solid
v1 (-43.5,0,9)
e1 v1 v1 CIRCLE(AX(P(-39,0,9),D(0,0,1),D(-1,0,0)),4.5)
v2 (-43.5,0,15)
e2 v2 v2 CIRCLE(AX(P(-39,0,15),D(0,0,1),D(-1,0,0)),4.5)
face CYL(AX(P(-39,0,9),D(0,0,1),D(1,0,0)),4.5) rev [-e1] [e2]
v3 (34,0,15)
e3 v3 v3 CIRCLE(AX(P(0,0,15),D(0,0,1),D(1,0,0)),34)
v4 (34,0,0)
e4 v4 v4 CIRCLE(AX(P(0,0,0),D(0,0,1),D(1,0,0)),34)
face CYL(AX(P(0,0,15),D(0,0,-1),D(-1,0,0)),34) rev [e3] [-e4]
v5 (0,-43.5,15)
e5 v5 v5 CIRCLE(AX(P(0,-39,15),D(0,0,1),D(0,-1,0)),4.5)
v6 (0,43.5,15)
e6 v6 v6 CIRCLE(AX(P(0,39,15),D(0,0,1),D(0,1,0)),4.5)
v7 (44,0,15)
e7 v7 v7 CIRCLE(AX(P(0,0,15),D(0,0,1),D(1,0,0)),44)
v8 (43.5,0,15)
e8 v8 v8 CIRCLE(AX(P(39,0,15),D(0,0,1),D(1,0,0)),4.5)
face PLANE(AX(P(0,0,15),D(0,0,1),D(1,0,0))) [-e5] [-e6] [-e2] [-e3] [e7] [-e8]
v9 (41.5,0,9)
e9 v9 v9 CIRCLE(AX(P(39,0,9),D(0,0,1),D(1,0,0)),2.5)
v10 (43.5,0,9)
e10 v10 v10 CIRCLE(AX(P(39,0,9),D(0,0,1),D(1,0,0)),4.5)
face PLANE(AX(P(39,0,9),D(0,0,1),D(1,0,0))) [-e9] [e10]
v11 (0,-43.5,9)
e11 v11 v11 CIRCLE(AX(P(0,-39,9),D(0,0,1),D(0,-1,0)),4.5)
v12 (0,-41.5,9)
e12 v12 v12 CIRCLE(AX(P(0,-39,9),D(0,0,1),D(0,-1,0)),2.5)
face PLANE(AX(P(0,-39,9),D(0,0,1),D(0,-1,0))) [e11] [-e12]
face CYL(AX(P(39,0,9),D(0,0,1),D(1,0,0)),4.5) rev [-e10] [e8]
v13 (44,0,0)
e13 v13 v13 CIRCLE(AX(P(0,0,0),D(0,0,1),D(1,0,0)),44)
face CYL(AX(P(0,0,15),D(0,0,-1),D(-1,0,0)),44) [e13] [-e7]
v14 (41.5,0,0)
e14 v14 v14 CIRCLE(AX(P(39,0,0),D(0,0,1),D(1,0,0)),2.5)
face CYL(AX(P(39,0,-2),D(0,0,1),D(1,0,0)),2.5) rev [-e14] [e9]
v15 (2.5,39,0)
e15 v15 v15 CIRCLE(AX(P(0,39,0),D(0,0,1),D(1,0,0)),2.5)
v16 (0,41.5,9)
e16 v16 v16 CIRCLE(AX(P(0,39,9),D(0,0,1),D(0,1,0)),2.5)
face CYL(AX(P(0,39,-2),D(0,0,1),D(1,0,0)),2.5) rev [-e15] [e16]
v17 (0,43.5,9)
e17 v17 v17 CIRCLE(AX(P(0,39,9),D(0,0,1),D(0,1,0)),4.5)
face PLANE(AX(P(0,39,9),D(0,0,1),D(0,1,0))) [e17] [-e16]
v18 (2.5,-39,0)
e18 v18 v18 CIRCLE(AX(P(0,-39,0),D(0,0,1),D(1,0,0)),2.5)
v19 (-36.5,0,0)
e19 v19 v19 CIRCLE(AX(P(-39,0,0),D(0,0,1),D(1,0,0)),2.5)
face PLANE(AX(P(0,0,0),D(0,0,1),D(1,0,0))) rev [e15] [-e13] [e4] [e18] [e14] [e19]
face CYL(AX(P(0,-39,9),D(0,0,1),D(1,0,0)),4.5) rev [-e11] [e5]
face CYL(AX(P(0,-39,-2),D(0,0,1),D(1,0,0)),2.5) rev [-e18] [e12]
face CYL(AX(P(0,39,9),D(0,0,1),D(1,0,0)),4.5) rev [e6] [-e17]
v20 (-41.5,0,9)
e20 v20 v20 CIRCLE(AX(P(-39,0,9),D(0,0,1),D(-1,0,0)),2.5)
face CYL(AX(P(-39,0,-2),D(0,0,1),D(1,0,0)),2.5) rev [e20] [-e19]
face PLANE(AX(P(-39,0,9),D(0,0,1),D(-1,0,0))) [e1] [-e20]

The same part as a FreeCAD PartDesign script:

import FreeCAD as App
import Part
import Sketcher
Q = App.Units.Quantity

doc = App.newDocument("Part")
params = doc.addObject("Spreadsheet::Sheet", "Params")
for row, (alias, value) in enumerate([
    ("sketch1_diameter", "88 mm"),
    ("sketch1_diameter2", "68 mm"),
    ("pad1_length", "15 mm"),
    ("sketch2_diameter", "9 mm"),
    ("pocket1_length", "6 mm"),
    ("sketch3_diameter", "5 mm"),
    ("pocket2_length", "11 mm"),
], start=1):
    params.set(f"A{row}", alias)
    params.set(f"B{row}", "=" + value)
    params.setAlias(f"B{row}", alias)

body = doc.addObject("PartDesign::Body", "Body")

sketch1 = body.newObject("Sketcher::SketchObject", "Sketch")
sketch1.AttachmentSupport = (doc.getObject("XY_Plane"), [""])
sketch1.MapMode = "FlatFace"
sketch1.addGeometry(Part.Circle(App.Vector(0, 0, 0), App.Vector(0, 0, 1), 44), False)
sketch1.addGeometry(Part.Circle(App.Vector(0, 0, 0), App.Vector(0, 0, 1), 34), False)
sketch1.addConstraint(Sketcher.Constraint("Coincident", 0, 3, -1, 1))
sketch1.addConstraint(Sketcher.Constraint("Coincident", 1, 3, -1, 1))
sketch1.addConstraint(Sketcher.Constraint("Diameter", 0, Q("88 mm")))
sketch1.addConstraint(Sketcher.Constraint("Diameter", 1, Q("68 mm")))
sketch1.setExpression("Constraints[2]", "Params.sketch1_diameter")
sketch1.setExpression("Constraints[3]", "Params.sketch1_diameter2")
pad1 = body.newObject("PartDesign::Pad", "Pad")
pad1.Profile = sketch1
pad1.setExpression("Length", "Params.pad1_length")

sketch2 = body.newObject("Sketcher::SketchObject", "Sketch001")
sketch2.AttachmentSupport = (doc.getObject("XY_Plane"), [""])
sketch2.MapMode = "FlatFace"
sketch2.AttachmentOffset = App.Placement(App.Vector(0, 0, 15), App.Rotation())
sketch2.addGeometry(Part.Circle(App.Vector(39, 0, 0), App.Vector(0, 0, 1), 4.5), False)
sketch2.addConstraint(Sketcher.Constraint("PointOnObject", 0, 3, -1))
sketch2.addConstraint(Sketcher.Constraint("Diameter", 0, Q("9 mm")))
sketch2.addConstraint(Sketcher.Constraint("DistanceX", -1, 1, 0, 3, Q("39 mm")))
sketch2.setExpression("Constraints[1]", "Params.sketch2_diameter")
pocket1 = body.newObject("PartDesign::Pocket", "Pocket")
pocket1.Profile = sketch2
pocket1.setExpression("Length", "Params.pocket1_length")

sketch3 = body.newObject("Sketcher::SketchObject", "Sketch002")
sketch3.AttachmentSupport = (doc.getObject("XY_Plane"), [""])
sketch3.MapMode = "FlatFace"
sketch3.AttachmentOffset = App.Placement(App.Vector(0, 0, 9), App.Rotation())
sketch3.addGeometry(Part.Circle(App.Vector(39, 0, 0), App.Vector(0, 0, 1), 2.5), False)
sketch3.addConstraint(Sketcher.Constraint("PointOnObject", 0, 3, -1))
sketch3.addConstraint(Sketcher.Constraint("Diameter", 0, Q("5 mm")))
sketch3.addConstraint(Sketcher.Constraint("DistanceX", -1, 1, 0, 3, Q("39 mm")))
sketch3.setExpression("Constraints[1]", "Params.sketch3_diameter")
pocket2 = body.newObject("PartDesign::Pocket", "Pocket001")
pocket2.Profile = sketch3
pocket2.setExpression("Length", "Params.pocket2_length")
doc.recompute()

polarpattern = body.newObject("PartDesign::PolarPattern", "PolarPattern")
polarpattern.Originals = [pocket1, pocket2]
polarpattern.Axis = (doc.getObject("Z_Axis"), [""])
polarpattern.Angle = 360
polarpattern.Occurrences = 4
body.Tip = polarpattern

doc.recompute()
